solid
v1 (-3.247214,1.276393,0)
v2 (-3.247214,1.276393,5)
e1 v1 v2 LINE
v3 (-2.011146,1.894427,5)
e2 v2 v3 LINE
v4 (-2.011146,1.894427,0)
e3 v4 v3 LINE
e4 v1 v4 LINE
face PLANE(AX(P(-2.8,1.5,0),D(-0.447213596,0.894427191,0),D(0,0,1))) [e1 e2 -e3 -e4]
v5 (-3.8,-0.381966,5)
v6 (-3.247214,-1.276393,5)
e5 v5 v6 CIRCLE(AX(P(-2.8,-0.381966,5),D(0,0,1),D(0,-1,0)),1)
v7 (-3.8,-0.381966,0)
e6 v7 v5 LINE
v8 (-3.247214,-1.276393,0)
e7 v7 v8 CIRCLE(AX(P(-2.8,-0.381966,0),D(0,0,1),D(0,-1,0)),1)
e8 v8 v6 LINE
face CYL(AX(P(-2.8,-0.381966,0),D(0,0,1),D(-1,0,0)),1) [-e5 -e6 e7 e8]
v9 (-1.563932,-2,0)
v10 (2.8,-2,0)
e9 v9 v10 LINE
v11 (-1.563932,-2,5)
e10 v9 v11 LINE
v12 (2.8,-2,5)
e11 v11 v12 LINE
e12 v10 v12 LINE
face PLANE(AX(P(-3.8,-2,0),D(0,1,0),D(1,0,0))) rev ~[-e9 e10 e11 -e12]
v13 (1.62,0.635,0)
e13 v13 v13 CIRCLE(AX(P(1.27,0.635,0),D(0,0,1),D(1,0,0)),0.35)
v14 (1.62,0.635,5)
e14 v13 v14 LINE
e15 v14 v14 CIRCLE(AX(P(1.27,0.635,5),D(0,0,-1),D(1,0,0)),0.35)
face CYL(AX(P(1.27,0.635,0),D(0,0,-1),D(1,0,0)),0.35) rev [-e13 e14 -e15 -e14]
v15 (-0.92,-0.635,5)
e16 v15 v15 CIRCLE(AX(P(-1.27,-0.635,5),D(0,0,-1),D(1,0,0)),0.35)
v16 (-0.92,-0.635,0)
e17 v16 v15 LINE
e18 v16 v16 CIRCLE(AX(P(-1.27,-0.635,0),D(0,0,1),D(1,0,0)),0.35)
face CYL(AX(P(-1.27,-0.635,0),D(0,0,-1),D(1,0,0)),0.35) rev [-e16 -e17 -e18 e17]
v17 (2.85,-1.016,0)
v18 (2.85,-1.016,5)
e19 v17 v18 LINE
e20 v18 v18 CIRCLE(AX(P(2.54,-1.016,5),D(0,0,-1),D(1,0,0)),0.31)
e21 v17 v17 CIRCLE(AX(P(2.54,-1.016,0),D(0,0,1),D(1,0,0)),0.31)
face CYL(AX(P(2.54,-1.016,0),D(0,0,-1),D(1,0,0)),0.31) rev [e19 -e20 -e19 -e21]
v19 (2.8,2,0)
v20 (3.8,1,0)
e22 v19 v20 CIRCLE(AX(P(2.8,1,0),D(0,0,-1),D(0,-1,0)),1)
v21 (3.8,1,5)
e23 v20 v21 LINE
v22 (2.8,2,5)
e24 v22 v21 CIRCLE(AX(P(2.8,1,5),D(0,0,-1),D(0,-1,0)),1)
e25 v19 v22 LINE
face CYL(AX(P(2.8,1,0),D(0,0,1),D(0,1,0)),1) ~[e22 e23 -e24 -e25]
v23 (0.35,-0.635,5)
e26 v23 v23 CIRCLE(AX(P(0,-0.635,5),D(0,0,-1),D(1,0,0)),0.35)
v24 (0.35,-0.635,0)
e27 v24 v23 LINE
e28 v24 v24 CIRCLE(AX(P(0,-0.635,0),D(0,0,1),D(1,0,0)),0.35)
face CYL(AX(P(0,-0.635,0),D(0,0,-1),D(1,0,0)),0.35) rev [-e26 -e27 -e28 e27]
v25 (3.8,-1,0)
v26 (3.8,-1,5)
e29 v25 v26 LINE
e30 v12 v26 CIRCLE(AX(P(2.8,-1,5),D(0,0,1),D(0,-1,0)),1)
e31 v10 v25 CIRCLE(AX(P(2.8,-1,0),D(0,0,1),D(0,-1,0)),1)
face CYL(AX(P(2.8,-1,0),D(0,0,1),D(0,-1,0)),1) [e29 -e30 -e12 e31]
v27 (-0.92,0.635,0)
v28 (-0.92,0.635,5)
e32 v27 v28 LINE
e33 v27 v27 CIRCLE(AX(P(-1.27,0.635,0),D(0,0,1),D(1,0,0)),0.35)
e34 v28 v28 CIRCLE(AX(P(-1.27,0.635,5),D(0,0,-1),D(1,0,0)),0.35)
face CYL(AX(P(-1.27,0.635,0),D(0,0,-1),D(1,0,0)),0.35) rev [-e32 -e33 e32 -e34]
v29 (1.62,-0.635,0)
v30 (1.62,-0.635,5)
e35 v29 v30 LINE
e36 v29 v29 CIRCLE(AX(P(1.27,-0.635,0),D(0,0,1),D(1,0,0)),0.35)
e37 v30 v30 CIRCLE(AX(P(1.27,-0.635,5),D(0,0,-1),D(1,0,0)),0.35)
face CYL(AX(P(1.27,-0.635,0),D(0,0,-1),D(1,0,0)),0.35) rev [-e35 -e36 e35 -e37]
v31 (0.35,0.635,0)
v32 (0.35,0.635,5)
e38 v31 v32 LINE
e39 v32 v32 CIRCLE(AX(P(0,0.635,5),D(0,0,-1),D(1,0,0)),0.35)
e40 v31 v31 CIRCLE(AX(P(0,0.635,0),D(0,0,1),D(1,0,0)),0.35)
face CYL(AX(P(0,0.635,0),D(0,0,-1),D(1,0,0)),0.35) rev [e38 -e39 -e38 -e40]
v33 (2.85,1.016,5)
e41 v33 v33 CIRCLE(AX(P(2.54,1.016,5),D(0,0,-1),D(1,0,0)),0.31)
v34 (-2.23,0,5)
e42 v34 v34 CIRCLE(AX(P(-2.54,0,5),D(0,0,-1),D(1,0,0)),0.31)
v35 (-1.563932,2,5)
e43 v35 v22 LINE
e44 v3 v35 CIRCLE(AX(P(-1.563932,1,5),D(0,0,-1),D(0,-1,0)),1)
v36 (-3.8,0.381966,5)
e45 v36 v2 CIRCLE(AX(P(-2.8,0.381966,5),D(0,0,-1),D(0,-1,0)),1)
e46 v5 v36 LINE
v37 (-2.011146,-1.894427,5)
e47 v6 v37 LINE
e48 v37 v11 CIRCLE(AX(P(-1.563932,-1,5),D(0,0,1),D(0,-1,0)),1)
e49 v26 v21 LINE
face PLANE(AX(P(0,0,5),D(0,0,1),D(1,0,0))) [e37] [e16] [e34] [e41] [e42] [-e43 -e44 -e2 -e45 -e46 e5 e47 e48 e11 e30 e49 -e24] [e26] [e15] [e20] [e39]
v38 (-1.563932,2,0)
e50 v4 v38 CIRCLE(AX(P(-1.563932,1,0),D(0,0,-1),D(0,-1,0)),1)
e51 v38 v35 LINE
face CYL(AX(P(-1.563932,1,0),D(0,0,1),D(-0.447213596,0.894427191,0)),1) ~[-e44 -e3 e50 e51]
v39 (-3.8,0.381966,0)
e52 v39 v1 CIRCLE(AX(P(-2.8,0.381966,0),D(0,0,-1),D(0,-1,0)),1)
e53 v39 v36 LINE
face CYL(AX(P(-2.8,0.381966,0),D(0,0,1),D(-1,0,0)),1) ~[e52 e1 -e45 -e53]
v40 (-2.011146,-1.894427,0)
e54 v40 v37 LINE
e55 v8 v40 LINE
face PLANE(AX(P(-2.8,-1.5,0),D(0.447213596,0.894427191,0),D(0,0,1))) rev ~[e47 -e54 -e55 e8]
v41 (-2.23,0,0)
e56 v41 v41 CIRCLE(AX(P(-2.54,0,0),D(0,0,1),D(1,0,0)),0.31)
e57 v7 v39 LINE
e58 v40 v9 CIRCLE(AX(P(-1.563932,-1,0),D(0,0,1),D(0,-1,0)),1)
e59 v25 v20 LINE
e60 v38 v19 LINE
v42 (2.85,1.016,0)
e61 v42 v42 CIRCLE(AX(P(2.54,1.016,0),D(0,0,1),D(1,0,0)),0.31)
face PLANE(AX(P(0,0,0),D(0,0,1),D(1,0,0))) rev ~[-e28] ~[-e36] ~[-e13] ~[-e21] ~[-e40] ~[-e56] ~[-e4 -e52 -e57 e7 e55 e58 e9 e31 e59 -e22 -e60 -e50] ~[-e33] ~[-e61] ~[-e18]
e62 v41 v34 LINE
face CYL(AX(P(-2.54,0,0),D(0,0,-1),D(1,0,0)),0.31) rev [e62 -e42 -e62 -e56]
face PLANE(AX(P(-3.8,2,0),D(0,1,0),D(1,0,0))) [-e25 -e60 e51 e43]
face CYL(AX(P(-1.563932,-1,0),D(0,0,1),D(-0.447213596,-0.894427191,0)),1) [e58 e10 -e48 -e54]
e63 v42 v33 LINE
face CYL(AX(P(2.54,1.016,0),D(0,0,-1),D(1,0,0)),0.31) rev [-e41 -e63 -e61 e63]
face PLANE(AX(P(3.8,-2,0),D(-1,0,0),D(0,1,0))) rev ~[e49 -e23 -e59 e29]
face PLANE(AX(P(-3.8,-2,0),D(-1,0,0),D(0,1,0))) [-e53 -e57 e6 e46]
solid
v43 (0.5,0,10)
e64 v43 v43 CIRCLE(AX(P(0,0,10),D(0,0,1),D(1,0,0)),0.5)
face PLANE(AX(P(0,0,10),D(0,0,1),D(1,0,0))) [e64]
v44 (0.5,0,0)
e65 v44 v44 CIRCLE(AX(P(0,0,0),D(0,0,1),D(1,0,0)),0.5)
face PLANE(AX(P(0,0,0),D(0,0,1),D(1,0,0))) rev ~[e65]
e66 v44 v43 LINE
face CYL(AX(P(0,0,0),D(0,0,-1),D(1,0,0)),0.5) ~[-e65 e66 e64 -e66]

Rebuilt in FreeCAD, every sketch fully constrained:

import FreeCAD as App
import Part
import Sketcher
from FreeCAD import Vector


def edges_at(feature, points):
    """Names of the edges that pass closest to the given points."""
    edges = feature.Shape.Edges
    near = lambda p: min(range(len(edges)), key=lambda i: edges[i].distToShape(Part.Vertex(*p))[0])
    return sorted({f"Edge{near(p) + 1}" for p in points})


def add_polygon(sketch, points):
    """Adds a closed chain of lines whose ends are joined by coincident constraints."""
    first, n = sketch.GeometryCount, len(points)
    for a, b in zip(points, points[1:] + points[:1]):
        sketch.addGeometry(Part.LineSegment(App.Vector(*a, 0), App.Vector(*b, 0)), False)
    for i in range(n):
        sketch.addConstraint(Sketcher.Constraint("Coincident", first + i, 2, first + (i + 1) % n, 1))

doc = App.newDocument("Part")
params = doc.addObject("Spreadsheet::Sheet", "Params")
for row, (alias, value) in enumerate([
    ("sketch1_diameter", "1 mm"),
    ("pad1_length", "10 mm"),
    ("sketch2_diameter", "0.7 mm"),
    ("pad2_length", "10 mm"),
    ("sketch3_diameter", "0.7 mm"),
    ("pad3_length", "10 mm"),
    ("sketch4_diameter", "0.7 mm"),
    ("pad4_length", "10 mm"),
    ("sketch5_diameter", "0.7 mm"),
    ("pad5_length", "10 mm"),
    ("sketch6_diameter", "0.7 mm"),
    ("pad6_length", "10 mm"),
    ("sketch7_diameter", "0.7 mm"),
    ("pad7_length", "10 mm"),
    ("sketch8_diameter", "0.62 mm"),
    ("pad8_length", "10 mm"),
    ("sketch9_diameter", "0.62 mm"),
    ("pad9_length", "10 mm"),
    ("sketch10_diameter", "0.62 mm"),
    ("pad10_length", "10 mm"),
    ("sketch11_height", "4 mm"),
    ("sketch11_width", "7.6 mm"),
    ("pad11_length", "5 mm"),
    ("chamfer_size", "1 mm"),
    ("chamfer_size2", "2 mm"),
    ("fillet_radius", "1 mm"),
], start=1):
    params.set(f"A{row}", alias)
    params.set(f"B{row}", "=" + value)
    params.setAlias(f"B{row}", alias)

body = doc.addObject("PartDesign::Body", "Body")

# Sketch on XY plane
sketch1 = body.newObject("Sketcher::SketchObject", "Sketch")
sketch1.AttachmentSupport = (doc.getObject("XY_Plane"), [""])
sketch1.MapMode = "FlatFace"
sketch1.addGeometry(Part.Circle(Vector(0, 0, 0), Vector(0, 0, 1), 0.5), False)
sketch1.addConstraint(Sketcher.Constraint("Coincident", 0, 3, -1, 1))
sketch1.addConstraint(Sketcher.Constraint("Diameter", 0, 1.0))
sketch1.setExpression("Constraints[1]", "Params.sketch1_diameter")
pad1 = body.newObject("PartDesign::Pad", "Pad")
pad1.Profile = sketch1
pad1.setExpression("Length", "Params.pad1_length")
body2 = doc.addObject("PartDesign::Body", "Body001")

# Sketch on XY plane
sketch2 = body2.newObject("Sketcher::SketchObject", "Sketch001")
sketch2.AttachmentSupport = (doc.getObject("XY_Plane001"), [""])
sketch2.MapMode = "FlatFace"
sketch2.addGeometry(Part.Circle(Vector(0, 0.64, 0), Vector(0, 0, 1), 0.35), False)
sketch2.addConstraint(Sketcher.Constraint("PointOnObject", 0, 3, -2))
sketch2.addConstraint(Sketcher.Constraint("Diameter", 0, 0.7))
sketch2.addConstraint(Sketcher.Constraint("DistanceY", -1, 1, 0, 3, 0.635))
sketch2.setExpression("Constraints[1]", "Params.sketch2_diameter")
pad2 = body2.newObject("PartDesign::Pad", "Pad001")
pad2.Profile = sketch2
pad2.setExpression("Length", "Params.pad2_length")
body3 = doc.addObject("PartDesign::Body", "Body002")

# Sketch on XY plane
sketch3 = body3.newObject("Sketcher::SketchObject", "Sketch002")
sketch3.AttachmentSupport = (doc.getObject("XY_Plane002"), [""])
sketch3.MapMode = "FlatFace"
sketch3.addGeometry(Part.Circle(Vector(0, -0.64, 0), Vector(0, 0, 1), 0.35), False)
sketch3.addConstraint(Sketcher.Constraint("PointOnObject", 0, 3, -2))
sketch3.addConstraint(Sketcher.Constraint("Diameter", 0, 0.7))
sketch3.addConstraint(Sketcher.Constraint("DistanceY", 0, 3, -1, 1, 0.635))
sketch3.setExpression("Constraints[1]", "Params.sketch3_diameter")
pad3 = body3.newObject("PartDesign::Pad", "Pad002")
pad3.Profile = sketch3
pad3.setExpression("Length", "Params.pad3_length")
body4 = doc.addObject("PartDesign::Body", "Body003")

# Sketch on XY plane
sketch4 = body4.newObject("Sketcher::SketchObject", "Sketch003")
sketch4.AttachmentSupport = (doc.getObject("XY_Plane003"), [""])
sketch4.MapMode = "FlatFace"
sketch4.addGeometry(Part.Circle(Vector(-1.27, 0.64, 0), Vector(0, 0, 1), 0.35), False)
sketch4.addConstraint(Sketcher.Constraint("Diameter", 0, 0.7))
sketch4.addConstraint(Sketcher.Constraint("DistanceX", 0, 3, -1, 1, 1.27))
sketch4.addConstraint(Sketcher.Constraint("DistanceY", -1, 1, 0, 3, 0.635))
sketch4.setExpression("Constraints[0]", "Params.sketch4_diameter")
pad4 = body4.newObject("PartDesign::Pad", "Pad003")
pad4.Profile = sketch4
pad4.setExpression("Length", "Params.pad4_length")
body5 = doc.addObject("PartDesign::Body", "Body004")

# Sketch on XY plane
sketch5 = body5.newObject("Sketcher::SketchObject", "Sketch004")
sketch5.AttachmentSupport = (doc.getObject("XY_Plane004"), [""])
sketch5.MapMode = "FlatFace"
sketch5.addGeometry(Part.Circle(Vector(-1.27, -0.64, 0), Vector(0, 0, 1), 0.35), False)
sketch5.addConstraint(Sketcher.Constraint("Diameter", 0, 0.7))
sketch5.addConstraint(Sketcher.Constraint("DistanceX", 0, 3, -1, 1, 1.27))
sketch5.addConstraint(Sketcher.Constraint("DistanceY", 0, 3, -1, 1, 0.635))
sketch5.setExpression("Constraints[0]", "Params.sketch5_diameter")
pad5 = body5.newObject("PartDesign::Pad", "Pad004")
pad5.Profile = sketch5
pad5.setExpression("Length", "Params.pad5_length")
body6 = doc.addObject("PartDesign::Body", "Body005")

# Sketch on XY plane
sketch6 = body6.newObject("Sketcher::SketchObject", "Sketch005")
sketch6.AttachmentSupport = (doc.getObject("XY_Plane005"), [""])
sketch6.MapMode = "FlatFace"
sketch6.addGeometry(Part.Circle(Vector(1.27, 0.64, 0), Vector(0, 0, 1), 0.35), False)
sketch6.addConstraint(Sketcher.Constraint("Diameter", 0, 0.7))
sketch6.addConstraint(Sketcher.Constraint("DistanceX", -1, 1, 0, 3, 1.27))
sketch6.addConstraint(Sketcher.Constraint("DistanceY", -1, 1, 0, 3, 0.635))
sketch6.setExpression("Constraints[0]", "Params.sketch6_diameter")
pad6 = body6.newObject("PartDesign::Pad", "Pad005")
pad6.Profile = sketch6
pad6.setExpression("Length", "Params.pad6_length")
body7 = doc.addObject("PartDesign::Body", "Body006")
body7.AllowCompound = True

# Sketch on XY plane
sketch7 = body7.newObject("Sketcher::SketchObject", "Sketch006")
sketch7.AttachmentSupport = (doc.getObject("XY_Plane006"), [""])
sketch7.MapMode = "FlatFace"
sketch7.addGeometry(Part.Circle(Vector(1.27, -0.64, 0), Vector(0, 0, 1), 0.35), False)
sketch7.addConstraint(Sketcher.Constraint("Diameter", 0, 0.7))
sketch7.addConstraint(Sketcher.Constraint("DistanceX", -1, 1, 0, 3, 1.27))
sketch7.addConstraint(Sketcher.Constraint("DistanceY", 0, 3, -1, 1, 0.635))
sketch7.setExpression("Constraints[0]", "Params.sketch7_diameter")
pad7 = body7.newObject("PartDesign::Pad", "Pad006")
pad7.Profile = sketch7
pad7.setExpression("Length", "Params.pad7_length")
doc.recompute()

boolean = body7.newObject("PartDesign::Boolean", "Boolean")
boolean.Type = "Fuse"
boolean.addObjects([body2])
doc.recompute()

boolean2 = body7.newObject("PartDesign::Boolean", "Boolean001")
boolean2.Type = "Fuse"
boolean2.addObjects([body3])
doc.recompute()

boolean3 = body7.newObject("PartDesign::Boolean", "Boolean002")
boolean3.Type = "Fuse"
boolean3.addObjects([body4])
doc.recompute()

boolean4 = body7.newObject("PartDesign::Boolean", "Boolean003")
boolean4.Type = "Fuse"
boolean4.addObjects([body5])
doc.recompute()

boolean5 = body7.newObject("PartDesign::Boolean", "Boolean004")
boolean5.Type = "Fuse"
boolean5.addObjects([body6])
body8 = doc.addObject("PartDesign::Body", "Body007")

# Sketch on XY plane
sketch8 = body8.newObject("Sketcher::SketchObject", "Sketch007")
sketch8.AttachmentSupport = (doc.getObject("XY_Plane007"), [""])
sketch8.MapMode = "FlatFace"
sketch8.addGeometry(Part.Circle(Vector(2.54, 1.02, 0), Vector(0, 0, 1), 0.31), False)
sketch8.addConstraint(Sketcher.Constraint("Diameter", 0, 0.62))
sketch8.addConstraint(Sketcher.Constraint("DistanceX", -1, 1, 0, 3, 2.54))
sketch8.addConstraint(Sketcher.Constraint("DistanceY", -1, 1, 0, 3, 1.016))
sketch8.setExpression("Constraints[0]", "Params.sketch8_diameter")
pad8 = body8.newObject("PartDesign::Pad", "Pad007")
pad8.Profile = sketch8
pad8.setExpression("Length", "Params.pad8_length")
body9 = doc.addObject("PartDesign::Body", "Body008")

# Sketch on XY plane
sketch9 = body9.newObject("Sketcher::SketchObject", "Sketch008")
sketch9.AttachmentSupport = (doc.getObject("XY_Plane008"), [""])
sketch9.MapMode = "FlatFace"
sketch9.addGeometry(Part.Circle(Vector(2.54, -1.02, 0), Vector(0, 0, 1), 0.31), False)
sketch9.addConstraint(Sketcher.Constraint("Diameter", 0, 0.62))
sketch9.addConstraint(Sketcher.Constraint("DistanceX", -1, 1, 0, 3, 2.54))
sketch9.addConstraint(Sketcher.Constraint("DistanceY", 0, 3, -1, 1, 1.016))
sketch9.setExpression("Constraints[0]", "Params.sketch9_diameter")
pad9 = body9.newObject("PartDesign::Pad", "Pad008")
pad9.Profile = sketch9
pad9.setExpression("Length", "Params.pad9_length")
body10 = doc.addObject("PartDesign::Body", "Body009")
body10.AllowCompound = True

# Sketch on XY plane
sketch10 = body10.newObject("Sketcher::SketchObject", "Sketch009")
sketch10.AttachmentSupport = (doc.getObject("XY_Plane009"), [""])
sketch10.MapMode = "FlatFace"
sketch10.addGeometry(Part.Circle(Vector(-2.54, 0, 0), Vector(0, 0, 1), 0.31), False)
sketch10.addConstraint(Sketcher.Constraint("PointOnObject", 0, 3, -1))
sketch10.addConstraint(Sketcher.Constraint("Diameter", 0, 0.62))
sketch10.addConstraint(Sketcher.Constraint("DistanceX", 0, 3, -1, 1, 2.54))
sketch10.setExpression("Constraints[1]", "Params.sketch10_diameter")
pad10 = body10.newObject("PartDesign::Pad", "Pad009")
pad10.Profile = sketch10
pad10.setExpression("Length", "Params.pad10_length")
doc.recompute()

boolean6 = body10.newObject("PartDesign::Boolean", "Boolean005")
boolean6.Type = "Fuse"
boolean6.addObjects([body8])
doc.recompute()

boolean7 = body10.newObject("PartDesign::Boolean", "Boolean006")
boolean7.Type = "Fuse"
boolean7.addObjects([body9])
doc.recompute()

boolean8 = body10.newObject("PartDesign::Boolean", "Boolean007")
boolean8.Type = "Fuse"
boolean8.addObjects([body7])
body11 = doc.addObject("PartDesign::Body", "Body010")

# Sketch on XY plane
sketch11 = body11.newObject("Sketcher::SketchObject", "Sketch010")
sketch11.AttachmentSupport = (doc.getObject("XY_Plane010"), [""])
sketch11.MapMode = "FlatFace"
add_polygon(sketch11, [(-3.8, 2), (-3.8, -2), (3.8, -2), (3.8, 2)])  # lines 0-3
sketch11.addConstraint(Sketcher.Constraint("Vertical", 0))
sketch11.addConstraint(Sketcher.Constraint("Horizontal", 1))
sketch11.addConstraint(Sketcher.Constraint("Vertical", 2))
sketch11.addConstraint(Sketcher.Constraint("Horizontal", 3))
sketch11.addConstraint(Sketcher.Constraint("Symmetric", 0, 2, 2, 2, -1, 1))
sketch11.addConstraint(Sketcher.Constraint("DistanceY", 0, 2, 0, 1, 4.0))
sketch11.addConstraint(Sketcher.Constraint("DistanceX", 1, 1, 1, 2, 7.6))
sketch11.setExpression("Constraints[9]", "Params.sketch11_height")
sketch11.setExpression("Constraints[10]", "Params.sketch11_width")
pad11 = body11.newObject("PartDesign::Pad", "Pad010")
pad11.Profile = sketch11
pad11.setExpression("Length", "Params.pad11_length")
doc.recompute()

chamfer = body11.newObject("PartDesign::Chamfer", "Chamfer")
chamfer.Base = (pad11, edges_at(pad11, [(-3.8, -2, 2.5), (-3.8, 2, 2.5)]))
chamfer.ChamferType = "Two distances"
chamfer.setExpression("Size", "Params.chamfer_size")
chamfer.setExpression("Size2", "Params.chamfer_size2")
doc.recompute()

fillet = body11.newObject("PartDesign::Fillet", "Fillet")
fillet.Base = (chamfer, edges_at(chamfer, [
    (-3.8, -1, 2.5),
    (-3.8, 1, 2.5),
    (-1.8, -2, 2.5),
    (-1.8, 2, 2.5),
    (3.8, -2, 2.5),
    (3.8, 2, 2.5),
]))
fillet.setExpression("Radius", "Params.fillet_radius")
doc.recompute()

boolean9 = body11.newObject("PartDesign::Boolean", "Boolean008")
boolean9.Type = "Cut"
boolean9.addObjects([body10])

doc.recompute()
